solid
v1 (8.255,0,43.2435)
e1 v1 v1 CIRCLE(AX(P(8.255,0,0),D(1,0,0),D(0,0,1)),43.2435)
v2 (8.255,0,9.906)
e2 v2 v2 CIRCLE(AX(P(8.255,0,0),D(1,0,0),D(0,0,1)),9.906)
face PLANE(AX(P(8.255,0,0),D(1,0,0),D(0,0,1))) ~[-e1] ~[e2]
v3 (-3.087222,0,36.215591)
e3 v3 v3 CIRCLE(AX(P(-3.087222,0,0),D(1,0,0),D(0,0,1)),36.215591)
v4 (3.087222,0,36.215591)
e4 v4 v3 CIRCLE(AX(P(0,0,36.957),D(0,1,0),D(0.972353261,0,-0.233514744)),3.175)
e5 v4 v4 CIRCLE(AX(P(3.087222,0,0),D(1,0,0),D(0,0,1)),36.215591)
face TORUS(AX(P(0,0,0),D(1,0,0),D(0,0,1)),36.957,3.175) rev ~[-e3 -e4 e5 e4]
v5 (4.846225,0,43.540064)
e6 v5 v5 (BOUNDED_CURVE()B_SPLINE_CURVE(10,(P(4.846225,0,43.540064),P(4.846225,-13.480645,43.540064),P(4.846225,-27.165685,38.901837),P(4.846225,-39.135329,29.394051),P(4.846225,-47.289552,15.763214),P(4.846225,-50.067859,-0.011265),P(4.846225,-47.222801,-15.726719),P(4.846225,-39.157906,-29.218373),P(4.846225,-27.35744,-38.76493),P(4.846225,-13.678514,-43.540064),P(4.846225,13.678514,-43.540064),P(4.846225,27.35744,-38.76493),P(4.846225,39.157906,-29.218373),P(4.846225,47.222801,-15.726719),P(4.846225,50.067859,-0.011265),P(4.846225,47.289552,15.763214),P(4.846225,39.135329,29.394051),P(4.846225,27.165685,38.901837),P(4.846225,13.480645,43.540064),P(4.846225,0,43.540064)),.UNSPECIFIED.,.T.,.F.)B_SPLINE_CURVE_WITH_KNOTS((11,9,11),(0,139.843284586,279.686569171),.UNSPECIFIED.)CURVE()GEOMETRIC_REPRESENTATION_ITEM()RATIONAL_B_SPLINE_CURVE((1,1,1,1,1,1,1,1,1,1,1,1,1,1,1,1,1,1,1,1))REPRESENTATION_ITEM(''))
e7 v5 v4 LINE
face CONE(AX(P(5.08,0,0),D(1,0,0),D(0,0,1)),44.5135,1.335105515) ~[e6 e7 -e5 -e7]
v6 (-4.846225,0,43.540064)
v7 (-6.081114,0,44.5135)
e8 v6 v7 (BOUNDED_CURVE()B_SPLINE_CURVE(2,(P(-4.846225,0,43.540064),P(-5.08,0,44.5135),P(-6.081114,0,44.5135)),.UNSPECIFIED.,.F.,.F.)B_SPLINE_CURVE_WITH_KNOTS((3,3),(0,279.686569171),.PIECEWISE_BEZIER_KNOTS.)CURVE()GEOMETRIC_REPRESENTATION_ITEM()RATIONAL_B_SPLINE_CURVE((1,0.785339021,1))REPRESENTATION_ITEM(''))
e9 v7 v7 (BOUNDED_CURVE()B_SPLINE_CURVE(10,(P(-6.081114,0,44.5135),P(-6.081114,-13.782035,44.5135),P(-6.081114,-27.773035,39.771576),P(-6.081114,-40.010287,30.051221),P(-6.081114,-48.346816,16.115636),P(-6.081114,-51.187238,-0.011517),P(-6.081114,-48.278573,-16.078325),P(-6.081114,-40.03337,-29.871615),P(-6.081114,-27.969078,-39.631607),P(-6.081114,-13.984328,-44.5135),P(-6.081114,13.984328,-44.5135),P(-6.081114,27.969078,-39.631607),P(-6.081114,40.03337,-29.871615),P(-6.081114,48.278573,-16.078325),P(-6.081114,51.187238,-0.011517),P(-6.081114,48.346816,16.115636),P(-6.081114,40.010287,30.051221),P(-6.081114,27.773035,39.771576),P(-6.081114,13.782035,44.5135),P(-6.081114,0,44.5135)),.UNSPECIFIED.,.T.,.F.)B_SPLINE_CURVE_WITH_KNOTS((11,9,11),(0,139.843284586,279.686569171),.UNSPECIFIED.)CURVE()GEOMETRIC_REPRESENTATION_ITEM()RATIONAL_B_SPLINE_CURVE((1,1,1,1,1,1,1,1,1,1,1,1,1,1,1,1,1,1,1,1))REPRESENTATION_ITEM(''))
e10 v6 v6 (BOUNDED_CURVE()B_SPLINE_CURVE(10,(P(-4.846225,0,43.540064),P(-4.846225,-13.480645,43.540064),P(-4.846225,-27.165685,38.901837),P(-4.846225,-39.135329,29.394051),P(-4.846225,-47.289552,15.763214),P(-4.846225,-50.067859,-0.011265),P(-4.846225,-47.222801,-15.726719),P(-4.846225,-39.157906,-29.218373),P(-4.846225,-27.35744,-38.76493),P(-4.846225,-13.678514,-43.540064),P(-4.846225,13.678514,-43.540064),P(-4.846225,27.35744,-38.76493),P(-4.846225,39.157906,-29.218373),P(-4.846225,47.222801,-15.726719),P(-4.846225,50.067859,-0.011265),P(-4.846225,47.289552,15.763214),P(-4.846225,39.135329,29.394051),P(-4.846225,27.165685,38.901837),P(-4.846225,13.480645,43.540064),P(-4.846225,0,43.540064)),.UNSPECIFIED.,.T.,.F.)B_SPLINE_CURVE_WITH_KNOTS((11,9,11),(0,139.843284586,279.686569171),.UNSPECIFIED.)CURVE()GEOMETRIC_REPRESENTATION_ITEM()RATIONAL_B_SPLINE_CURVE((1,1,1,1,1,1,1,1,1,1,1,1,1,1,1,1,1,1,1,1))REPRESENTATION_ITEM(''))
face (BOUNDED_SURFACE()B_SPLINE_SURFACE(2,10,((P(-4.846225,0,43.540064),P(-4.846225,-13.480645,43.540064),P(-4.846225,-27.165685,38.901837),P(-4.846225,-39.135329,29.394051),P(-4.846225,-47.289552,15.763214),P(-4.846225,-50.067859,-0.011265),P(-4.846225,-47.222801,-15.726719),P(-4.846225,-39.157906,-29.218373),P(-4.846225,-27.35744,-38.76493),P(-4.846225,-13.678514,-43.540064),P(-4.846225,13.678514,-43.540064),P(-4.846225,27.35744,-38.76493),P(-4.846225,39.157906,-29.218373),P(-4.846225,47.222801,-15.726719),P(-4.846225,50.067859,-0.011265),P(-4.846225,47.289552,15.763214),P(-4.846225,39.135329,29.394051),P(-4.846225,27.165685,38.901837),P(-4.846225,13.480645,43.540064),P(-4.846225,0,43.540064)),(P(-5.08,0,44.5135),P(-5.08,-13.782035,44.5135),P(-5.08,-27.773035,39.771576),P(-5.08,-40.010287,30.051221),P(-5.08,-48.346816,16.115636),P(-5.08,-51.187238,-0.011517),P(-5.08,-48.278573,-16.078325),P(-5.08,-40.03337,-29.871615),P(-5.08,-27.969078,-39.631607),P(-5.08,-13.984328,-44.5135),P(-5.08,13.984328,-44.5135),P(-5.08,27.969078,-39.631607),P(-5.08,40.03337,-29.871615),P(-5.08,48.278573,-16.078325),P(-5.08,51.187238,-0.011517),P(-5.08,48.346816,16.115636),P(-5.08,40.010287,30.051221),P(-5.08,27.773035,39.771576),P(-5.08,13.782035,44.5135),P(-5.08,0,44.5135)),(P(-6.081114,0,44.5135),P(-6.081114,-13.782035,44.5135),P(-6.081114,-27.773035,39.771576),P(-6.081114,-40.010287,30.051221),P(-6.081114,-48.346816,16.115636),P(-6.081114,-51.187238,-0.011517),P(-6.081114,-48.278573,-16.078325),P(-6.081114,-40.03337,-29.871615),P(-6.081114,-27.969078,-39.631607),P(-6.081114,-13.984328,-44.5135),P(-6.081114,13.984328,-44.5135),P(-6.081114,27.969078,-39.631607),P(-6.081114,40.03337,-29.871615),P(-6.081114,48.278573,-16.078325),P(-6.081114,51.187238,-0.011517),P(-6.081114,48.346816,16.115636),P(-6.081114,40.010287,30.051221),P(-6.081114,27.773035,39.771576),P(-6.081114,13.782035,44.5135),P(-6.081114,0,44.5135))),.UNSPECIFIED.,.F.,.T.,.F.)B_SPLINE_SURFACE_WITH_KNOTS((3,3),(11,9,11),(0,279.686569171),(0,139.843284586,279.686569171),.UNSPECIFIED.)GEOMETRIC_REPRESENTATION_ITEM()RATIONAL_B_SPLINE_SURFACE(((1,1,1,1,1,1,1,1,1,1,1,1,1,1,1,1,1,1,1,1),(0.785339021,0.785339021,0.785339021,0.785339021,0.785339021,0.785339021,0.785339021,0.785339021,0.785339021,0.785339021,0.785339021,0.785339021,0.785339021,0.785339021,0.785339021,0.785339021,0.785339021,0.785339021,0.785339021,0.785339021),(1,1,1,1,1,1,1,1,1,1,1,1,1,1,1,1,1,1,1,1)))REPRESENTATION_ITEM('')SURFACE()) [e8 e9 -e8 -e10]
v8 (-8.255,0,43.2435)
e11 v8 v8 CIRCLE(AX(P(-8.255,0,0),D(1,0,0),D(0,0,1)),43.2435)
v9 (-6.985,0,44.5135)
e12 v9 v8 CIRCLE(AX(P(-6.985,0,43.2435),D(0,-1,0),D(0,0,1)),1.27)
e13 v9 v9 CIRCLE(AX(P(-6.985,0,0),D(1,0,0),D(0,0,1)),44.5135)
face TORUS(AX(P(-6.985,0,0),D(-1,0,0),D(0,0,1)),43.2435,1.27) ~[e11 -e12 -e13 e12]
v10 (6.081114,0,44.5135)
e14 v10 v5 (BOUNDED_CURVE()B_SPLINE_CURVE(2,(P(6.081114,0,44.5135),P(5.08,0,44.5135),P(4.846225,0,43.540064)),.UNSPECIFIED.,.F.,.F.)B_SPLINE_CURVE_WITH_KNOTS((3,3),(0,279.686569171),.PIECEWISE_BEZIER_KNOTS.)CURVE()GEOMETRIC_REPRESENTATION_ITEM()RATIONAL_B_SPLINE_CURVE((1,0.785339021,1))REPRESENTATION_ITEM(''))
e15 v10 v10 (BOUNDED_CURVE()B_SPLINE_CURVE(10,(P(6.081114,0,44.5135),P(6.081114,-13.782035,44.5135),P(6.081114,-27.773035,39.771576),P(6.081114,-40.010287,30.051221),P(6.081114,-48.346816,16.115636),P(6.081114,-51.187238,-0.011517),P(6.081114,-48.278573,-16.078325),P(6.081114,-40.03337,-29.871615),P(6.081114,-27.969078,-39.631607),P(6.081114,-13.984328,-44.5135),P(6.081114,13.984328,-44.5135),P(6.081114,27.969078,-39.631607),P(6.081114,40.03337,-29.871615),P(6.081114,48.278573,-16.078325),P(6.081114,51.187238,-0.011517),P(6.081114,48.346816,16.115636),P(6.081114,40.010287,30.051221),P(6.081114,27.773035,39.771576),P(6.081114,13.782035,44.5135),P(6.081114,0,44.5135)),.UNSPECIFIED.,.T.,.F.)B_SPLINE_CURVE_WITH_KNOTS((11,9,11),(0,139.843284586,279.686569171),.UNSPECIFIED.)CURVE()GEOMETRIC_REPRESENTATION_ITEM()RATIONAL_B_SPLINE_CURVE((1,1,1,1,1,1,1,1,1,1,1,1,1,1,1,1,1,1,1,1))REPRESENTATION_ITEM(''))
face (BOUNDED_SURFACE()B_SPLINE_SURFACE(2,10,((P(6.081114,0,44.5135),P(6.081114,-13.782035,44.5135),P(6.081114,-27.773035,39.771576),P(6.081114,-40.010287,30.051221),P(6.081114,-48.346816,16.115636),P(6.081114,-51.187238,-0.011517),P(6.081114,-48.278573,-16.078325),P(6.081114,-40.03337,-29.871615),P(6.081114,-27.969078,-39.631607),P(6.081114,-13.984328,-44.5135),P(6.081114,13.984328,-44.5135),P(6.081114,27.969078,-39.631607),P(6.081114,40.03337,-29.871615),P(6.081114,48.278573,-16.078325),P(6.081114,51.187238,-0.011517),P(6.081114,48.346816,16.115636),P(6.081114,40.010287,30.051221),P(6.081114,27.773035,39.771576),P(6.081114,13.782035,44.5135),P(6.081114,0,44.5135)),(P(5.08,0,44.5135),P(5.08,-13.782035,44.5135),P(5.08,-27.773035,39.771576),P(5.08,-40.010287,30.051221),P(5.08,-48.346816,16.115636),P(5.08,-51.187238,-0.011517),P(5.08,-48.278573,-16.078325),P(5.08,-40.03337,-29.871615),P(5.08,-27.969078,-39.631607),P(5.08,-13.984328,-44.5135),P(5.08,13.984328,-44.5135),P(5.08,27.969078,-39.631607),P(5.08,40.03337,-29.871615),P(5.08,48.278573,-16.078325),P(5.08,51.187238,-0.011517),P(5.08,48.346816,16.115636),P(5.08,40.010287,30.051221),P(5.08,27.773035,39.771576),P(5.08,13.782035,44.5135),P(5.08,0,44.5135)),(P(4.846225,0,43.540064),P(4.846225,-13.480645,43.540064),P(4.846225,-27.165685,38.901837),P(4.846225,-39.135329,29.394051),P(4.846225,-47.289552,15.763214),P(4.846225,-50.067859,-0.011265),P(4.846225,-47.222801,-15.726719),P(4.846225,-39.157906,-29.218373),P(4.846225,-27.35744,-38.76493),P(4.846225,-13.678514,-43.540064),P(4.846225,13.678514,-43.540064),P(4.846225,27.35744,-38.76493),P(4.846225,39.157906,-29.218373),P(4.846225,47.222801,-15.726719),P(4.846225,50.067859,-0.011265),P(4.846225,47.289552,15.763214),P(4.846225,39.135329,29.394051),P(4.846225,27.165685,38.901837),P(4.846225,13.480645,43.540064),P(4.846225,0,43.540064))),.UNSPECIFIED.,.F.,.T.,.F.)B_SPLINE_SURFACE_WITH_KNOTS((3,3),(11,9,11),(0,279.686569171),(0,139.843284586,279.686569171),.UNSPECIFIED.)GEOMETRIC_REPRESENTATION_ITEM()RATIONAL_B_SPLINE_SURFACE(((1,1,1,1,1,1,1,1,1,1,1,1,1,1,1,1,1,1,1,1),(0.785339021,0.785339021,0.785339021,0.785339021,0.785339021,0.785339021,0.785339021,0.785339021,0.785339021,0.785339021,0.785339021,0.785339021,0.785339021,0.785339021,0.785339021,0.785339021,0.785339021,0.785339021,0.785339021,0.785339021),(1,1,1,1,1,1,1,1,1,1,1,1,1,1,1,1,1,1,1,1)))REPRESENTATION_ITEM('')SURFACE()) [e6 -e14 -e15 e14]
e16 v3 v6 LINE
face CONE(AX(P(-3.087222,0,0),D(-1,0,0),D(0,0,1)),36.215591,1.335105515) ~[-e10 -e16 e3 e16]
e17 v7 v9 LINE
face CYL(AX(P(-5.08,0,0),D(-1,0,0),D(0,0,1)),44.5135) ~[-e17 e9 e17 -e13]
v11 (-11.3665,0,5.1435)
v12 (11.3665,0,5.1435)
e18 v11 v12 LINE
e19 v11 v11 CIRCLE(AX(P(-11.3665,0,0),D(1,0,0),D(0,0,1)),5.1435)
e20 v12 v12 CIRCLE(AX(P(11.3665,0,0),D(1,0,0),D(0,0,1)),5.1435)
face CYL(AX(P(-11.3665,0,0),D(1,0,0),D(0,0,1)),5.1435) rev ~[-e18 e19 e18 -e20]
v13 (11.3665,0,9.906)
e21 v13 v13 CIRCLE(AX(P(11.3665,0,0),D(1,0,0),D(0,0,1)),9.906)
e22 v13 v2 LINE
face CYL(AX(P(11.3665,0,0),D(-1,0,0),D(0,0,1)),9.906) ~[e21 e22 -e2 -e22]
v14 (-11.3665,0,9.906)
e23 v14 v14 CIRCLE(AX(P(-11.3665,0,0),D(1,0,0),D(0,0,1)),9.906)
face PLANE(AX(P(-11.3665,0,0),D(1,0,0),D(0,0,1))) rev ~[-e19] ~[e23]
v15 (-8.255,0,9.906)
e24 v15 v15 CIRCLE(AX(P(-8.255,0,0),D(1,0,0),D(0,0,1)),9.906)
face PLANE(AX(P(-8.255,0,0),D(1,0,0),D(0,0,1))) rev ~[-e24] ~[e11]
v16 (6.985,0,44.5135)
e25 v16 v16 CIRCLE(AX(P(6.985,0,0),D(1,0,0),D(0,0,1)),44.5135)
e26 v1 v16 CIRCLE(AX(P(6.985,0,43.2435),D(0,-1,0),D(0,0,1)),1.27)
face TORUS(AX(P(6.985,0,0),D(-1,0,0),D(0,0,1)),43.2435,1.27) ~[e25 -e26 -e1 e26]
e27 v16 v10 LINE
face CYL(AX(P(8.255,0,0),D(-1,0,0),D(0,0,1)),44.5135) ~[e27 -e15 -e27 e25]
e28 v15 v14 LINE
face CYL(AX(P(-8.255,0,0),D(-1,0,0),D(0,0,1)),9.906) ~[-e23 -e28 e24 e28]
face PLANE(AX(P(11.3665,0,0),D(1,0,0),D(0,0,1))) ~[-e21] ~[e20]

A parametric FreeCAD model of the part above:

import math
import FreeCAD as App
import Part
import Sketcher

V = App.Vector
Q = App.Units.Quantity


def edges_at(feature, points):
    """Names of the edges that pass closest to the given points."""
    edges = feature.Shape.Edges
    near = lambda p: min(range(len(edges)), key=lambda i: edges[i].distToShape(Part.Vertex(*p))[0])
    return sorted({f"Edge{near(p) + 1}" for p in points})

doc = App.newDocument("Part")
body = doc.addObject("PartDesign::Body", "Body")

sketch1 = body.newObject("Sketcher::SketchObject", "Sketch")
sketch1.AttachmentSupport = (doc.getObject("XZ_Plane"), [""])
sketch1.MapMode = "FlatFace"
sketch1.addGeometry([
    Part.LineSegment(V(-11.3665, 9.906, 0), V(-11.3665, 5.1435, 0)),
    Part.LineSegment(V(-11.3665, 5.1435, 0), V(11.3665, 5.1435, 0)),
    Part.LineSegment(V(11.3665, 5.1435, 0), V(11.3665, 9.906, 0)),
    Part.LineSegment(V(11.3665, 9.906, 0), V(8.255, 9.906, 0)),
    Part.LineSegment(V(8.255, 9.906, 0), V(8.255, 44.5135, 0)),
    Part.LineSegment(V(8.255, 44.5135, 0), V(5.08, 44.5135, 0)),
    Part.LineSegment(V(5.08, 44.5135, 0), V(3.087222, 36.215591, 0)),
    Part.ArcOfCircle(Part.Circle(V(0, 36.957, 0), V(0, 0, 1), 3.175), math.radians(-166.495912), math.radians(-13.504088)),
    Part.LineSegment(V(-3.087222, 36.215591, 0), V(-5.08, 44.5135, 0)),
    Part.LineSegment(V(-5.08, 44.5135, 0), V(-8.255, 44.5135, 0)),
    Part.LineSegment(V(-8.255, 44.5135, 0), V(-8.255, 9.906, 0)),
    Part.LineSegment(V(-8.255, 9.906, 0), V(-11.3665, 9.906, 0)),
], False)
sketch1.addConstraint([
    Sketcher.Constraint("Coincident", 0, 2, 1, 1),
    Sketcher.Constraint("Coincident", 1, 2, 2, 1),
    Sketcher.Constraint("Coincident", 2, 2, 3, 1),
    Sketcher.Constraint("Coincident", 3, 2, 4, 1),
    Sketcher.Constraint("Coincident", 4, 2, 5, 1),
    Sketcher.Constraint("Coincident", 5, 2, 6, 1),
    Sketcher.Constraint("Tangent", 6, 2, 7, 2),
    Sketcher.Constraint("Tangent", 7, 1, 8, 1),
    Sketcher.Constraint("Coincident", 8, 2, 9, 1),
    Sketcher.Constraint("Coincident", 9, 2, 10, 1),
    Sketcher.Constraint("Coincident", 10, 2, 11, 1),
    Sketcher.Constraint("Coincident", 11, 2, 0, 1),
    Sketcher.Constraint("Vertical", 0),
    Sketcher.Constraint("Horizontal", 1),
    Sketcher.Constraint("Vertical", 2),
    Sketcher.Constraint("Horizontal", 3),
    Sketcher.Constraint("Vertical", 4),
    Sketcher.Constraint("Horizontal", 5),
    Sketcher.Constraint("Horizontal", 9),
    Sketcher.Constraint("Vertical", 10),
    Sketcher.Constraint("Horizontal", 11),
    Sketcher.Constraint("Symmetric", 6, 2, 7, 1, -2),
    Sketcher.Constraint("Symmetric", 4, 2, 9, 2, -2),
    Sketcher.Constraint("Symmetric", 2, 2, 11, 2, -2),
    Sketcher.Constraint("Radius", 7, Q("0.125 in")),
    Sketcher.Constraint("DistanceX", -1, 1, 5, 2, Q("0.2 in")),
    Sketcher.Constraint("DistanceX", 1, 1, 1, 2, Q("0.895 in")),
    Sketcher.Constraint("DistanceX", 5, 2, 5, 1, Q("0.125 in")),
    Sketcher.Constraint("DistanceY", 0, 2, 0, 1, Q("0.1875 in")),
    Sketcher.Constraint("DistanceY", -1, 1, 2, 2, Q("0.39 in")),
    Sketcher.Constraint("DistanceY", 1, 2, 4, 2, Q("1.55 in")),
    Sketcher.Constraint("DistanceY", -1, 1, 7, 3, Q("1.455 in")),
])
revolution = body.newObject("PartDesign::Revolution", "Revolution")
revolution.Profile = sketch1
revolution.ReferenceAxis = (sketch1, ["H_Axis"])
revolution.Angle = 360
doc.recompute()

fillet = body.newObject("PartDesign::Fillet", "Fillet")
fillet.Base = (revolution, edges_at(revolution, [
    (-5.08, 0, -44.514),
    (-8.255, 0, -44.514),
    (-6.668, 0, 44.514),
    (8.255, 0, -44.514),
    (5.08, 0, -44.514),
    (6.668, 0, 44.514),
]))
fillet.Radius = Q("0.05 in")

doc.recompute()
